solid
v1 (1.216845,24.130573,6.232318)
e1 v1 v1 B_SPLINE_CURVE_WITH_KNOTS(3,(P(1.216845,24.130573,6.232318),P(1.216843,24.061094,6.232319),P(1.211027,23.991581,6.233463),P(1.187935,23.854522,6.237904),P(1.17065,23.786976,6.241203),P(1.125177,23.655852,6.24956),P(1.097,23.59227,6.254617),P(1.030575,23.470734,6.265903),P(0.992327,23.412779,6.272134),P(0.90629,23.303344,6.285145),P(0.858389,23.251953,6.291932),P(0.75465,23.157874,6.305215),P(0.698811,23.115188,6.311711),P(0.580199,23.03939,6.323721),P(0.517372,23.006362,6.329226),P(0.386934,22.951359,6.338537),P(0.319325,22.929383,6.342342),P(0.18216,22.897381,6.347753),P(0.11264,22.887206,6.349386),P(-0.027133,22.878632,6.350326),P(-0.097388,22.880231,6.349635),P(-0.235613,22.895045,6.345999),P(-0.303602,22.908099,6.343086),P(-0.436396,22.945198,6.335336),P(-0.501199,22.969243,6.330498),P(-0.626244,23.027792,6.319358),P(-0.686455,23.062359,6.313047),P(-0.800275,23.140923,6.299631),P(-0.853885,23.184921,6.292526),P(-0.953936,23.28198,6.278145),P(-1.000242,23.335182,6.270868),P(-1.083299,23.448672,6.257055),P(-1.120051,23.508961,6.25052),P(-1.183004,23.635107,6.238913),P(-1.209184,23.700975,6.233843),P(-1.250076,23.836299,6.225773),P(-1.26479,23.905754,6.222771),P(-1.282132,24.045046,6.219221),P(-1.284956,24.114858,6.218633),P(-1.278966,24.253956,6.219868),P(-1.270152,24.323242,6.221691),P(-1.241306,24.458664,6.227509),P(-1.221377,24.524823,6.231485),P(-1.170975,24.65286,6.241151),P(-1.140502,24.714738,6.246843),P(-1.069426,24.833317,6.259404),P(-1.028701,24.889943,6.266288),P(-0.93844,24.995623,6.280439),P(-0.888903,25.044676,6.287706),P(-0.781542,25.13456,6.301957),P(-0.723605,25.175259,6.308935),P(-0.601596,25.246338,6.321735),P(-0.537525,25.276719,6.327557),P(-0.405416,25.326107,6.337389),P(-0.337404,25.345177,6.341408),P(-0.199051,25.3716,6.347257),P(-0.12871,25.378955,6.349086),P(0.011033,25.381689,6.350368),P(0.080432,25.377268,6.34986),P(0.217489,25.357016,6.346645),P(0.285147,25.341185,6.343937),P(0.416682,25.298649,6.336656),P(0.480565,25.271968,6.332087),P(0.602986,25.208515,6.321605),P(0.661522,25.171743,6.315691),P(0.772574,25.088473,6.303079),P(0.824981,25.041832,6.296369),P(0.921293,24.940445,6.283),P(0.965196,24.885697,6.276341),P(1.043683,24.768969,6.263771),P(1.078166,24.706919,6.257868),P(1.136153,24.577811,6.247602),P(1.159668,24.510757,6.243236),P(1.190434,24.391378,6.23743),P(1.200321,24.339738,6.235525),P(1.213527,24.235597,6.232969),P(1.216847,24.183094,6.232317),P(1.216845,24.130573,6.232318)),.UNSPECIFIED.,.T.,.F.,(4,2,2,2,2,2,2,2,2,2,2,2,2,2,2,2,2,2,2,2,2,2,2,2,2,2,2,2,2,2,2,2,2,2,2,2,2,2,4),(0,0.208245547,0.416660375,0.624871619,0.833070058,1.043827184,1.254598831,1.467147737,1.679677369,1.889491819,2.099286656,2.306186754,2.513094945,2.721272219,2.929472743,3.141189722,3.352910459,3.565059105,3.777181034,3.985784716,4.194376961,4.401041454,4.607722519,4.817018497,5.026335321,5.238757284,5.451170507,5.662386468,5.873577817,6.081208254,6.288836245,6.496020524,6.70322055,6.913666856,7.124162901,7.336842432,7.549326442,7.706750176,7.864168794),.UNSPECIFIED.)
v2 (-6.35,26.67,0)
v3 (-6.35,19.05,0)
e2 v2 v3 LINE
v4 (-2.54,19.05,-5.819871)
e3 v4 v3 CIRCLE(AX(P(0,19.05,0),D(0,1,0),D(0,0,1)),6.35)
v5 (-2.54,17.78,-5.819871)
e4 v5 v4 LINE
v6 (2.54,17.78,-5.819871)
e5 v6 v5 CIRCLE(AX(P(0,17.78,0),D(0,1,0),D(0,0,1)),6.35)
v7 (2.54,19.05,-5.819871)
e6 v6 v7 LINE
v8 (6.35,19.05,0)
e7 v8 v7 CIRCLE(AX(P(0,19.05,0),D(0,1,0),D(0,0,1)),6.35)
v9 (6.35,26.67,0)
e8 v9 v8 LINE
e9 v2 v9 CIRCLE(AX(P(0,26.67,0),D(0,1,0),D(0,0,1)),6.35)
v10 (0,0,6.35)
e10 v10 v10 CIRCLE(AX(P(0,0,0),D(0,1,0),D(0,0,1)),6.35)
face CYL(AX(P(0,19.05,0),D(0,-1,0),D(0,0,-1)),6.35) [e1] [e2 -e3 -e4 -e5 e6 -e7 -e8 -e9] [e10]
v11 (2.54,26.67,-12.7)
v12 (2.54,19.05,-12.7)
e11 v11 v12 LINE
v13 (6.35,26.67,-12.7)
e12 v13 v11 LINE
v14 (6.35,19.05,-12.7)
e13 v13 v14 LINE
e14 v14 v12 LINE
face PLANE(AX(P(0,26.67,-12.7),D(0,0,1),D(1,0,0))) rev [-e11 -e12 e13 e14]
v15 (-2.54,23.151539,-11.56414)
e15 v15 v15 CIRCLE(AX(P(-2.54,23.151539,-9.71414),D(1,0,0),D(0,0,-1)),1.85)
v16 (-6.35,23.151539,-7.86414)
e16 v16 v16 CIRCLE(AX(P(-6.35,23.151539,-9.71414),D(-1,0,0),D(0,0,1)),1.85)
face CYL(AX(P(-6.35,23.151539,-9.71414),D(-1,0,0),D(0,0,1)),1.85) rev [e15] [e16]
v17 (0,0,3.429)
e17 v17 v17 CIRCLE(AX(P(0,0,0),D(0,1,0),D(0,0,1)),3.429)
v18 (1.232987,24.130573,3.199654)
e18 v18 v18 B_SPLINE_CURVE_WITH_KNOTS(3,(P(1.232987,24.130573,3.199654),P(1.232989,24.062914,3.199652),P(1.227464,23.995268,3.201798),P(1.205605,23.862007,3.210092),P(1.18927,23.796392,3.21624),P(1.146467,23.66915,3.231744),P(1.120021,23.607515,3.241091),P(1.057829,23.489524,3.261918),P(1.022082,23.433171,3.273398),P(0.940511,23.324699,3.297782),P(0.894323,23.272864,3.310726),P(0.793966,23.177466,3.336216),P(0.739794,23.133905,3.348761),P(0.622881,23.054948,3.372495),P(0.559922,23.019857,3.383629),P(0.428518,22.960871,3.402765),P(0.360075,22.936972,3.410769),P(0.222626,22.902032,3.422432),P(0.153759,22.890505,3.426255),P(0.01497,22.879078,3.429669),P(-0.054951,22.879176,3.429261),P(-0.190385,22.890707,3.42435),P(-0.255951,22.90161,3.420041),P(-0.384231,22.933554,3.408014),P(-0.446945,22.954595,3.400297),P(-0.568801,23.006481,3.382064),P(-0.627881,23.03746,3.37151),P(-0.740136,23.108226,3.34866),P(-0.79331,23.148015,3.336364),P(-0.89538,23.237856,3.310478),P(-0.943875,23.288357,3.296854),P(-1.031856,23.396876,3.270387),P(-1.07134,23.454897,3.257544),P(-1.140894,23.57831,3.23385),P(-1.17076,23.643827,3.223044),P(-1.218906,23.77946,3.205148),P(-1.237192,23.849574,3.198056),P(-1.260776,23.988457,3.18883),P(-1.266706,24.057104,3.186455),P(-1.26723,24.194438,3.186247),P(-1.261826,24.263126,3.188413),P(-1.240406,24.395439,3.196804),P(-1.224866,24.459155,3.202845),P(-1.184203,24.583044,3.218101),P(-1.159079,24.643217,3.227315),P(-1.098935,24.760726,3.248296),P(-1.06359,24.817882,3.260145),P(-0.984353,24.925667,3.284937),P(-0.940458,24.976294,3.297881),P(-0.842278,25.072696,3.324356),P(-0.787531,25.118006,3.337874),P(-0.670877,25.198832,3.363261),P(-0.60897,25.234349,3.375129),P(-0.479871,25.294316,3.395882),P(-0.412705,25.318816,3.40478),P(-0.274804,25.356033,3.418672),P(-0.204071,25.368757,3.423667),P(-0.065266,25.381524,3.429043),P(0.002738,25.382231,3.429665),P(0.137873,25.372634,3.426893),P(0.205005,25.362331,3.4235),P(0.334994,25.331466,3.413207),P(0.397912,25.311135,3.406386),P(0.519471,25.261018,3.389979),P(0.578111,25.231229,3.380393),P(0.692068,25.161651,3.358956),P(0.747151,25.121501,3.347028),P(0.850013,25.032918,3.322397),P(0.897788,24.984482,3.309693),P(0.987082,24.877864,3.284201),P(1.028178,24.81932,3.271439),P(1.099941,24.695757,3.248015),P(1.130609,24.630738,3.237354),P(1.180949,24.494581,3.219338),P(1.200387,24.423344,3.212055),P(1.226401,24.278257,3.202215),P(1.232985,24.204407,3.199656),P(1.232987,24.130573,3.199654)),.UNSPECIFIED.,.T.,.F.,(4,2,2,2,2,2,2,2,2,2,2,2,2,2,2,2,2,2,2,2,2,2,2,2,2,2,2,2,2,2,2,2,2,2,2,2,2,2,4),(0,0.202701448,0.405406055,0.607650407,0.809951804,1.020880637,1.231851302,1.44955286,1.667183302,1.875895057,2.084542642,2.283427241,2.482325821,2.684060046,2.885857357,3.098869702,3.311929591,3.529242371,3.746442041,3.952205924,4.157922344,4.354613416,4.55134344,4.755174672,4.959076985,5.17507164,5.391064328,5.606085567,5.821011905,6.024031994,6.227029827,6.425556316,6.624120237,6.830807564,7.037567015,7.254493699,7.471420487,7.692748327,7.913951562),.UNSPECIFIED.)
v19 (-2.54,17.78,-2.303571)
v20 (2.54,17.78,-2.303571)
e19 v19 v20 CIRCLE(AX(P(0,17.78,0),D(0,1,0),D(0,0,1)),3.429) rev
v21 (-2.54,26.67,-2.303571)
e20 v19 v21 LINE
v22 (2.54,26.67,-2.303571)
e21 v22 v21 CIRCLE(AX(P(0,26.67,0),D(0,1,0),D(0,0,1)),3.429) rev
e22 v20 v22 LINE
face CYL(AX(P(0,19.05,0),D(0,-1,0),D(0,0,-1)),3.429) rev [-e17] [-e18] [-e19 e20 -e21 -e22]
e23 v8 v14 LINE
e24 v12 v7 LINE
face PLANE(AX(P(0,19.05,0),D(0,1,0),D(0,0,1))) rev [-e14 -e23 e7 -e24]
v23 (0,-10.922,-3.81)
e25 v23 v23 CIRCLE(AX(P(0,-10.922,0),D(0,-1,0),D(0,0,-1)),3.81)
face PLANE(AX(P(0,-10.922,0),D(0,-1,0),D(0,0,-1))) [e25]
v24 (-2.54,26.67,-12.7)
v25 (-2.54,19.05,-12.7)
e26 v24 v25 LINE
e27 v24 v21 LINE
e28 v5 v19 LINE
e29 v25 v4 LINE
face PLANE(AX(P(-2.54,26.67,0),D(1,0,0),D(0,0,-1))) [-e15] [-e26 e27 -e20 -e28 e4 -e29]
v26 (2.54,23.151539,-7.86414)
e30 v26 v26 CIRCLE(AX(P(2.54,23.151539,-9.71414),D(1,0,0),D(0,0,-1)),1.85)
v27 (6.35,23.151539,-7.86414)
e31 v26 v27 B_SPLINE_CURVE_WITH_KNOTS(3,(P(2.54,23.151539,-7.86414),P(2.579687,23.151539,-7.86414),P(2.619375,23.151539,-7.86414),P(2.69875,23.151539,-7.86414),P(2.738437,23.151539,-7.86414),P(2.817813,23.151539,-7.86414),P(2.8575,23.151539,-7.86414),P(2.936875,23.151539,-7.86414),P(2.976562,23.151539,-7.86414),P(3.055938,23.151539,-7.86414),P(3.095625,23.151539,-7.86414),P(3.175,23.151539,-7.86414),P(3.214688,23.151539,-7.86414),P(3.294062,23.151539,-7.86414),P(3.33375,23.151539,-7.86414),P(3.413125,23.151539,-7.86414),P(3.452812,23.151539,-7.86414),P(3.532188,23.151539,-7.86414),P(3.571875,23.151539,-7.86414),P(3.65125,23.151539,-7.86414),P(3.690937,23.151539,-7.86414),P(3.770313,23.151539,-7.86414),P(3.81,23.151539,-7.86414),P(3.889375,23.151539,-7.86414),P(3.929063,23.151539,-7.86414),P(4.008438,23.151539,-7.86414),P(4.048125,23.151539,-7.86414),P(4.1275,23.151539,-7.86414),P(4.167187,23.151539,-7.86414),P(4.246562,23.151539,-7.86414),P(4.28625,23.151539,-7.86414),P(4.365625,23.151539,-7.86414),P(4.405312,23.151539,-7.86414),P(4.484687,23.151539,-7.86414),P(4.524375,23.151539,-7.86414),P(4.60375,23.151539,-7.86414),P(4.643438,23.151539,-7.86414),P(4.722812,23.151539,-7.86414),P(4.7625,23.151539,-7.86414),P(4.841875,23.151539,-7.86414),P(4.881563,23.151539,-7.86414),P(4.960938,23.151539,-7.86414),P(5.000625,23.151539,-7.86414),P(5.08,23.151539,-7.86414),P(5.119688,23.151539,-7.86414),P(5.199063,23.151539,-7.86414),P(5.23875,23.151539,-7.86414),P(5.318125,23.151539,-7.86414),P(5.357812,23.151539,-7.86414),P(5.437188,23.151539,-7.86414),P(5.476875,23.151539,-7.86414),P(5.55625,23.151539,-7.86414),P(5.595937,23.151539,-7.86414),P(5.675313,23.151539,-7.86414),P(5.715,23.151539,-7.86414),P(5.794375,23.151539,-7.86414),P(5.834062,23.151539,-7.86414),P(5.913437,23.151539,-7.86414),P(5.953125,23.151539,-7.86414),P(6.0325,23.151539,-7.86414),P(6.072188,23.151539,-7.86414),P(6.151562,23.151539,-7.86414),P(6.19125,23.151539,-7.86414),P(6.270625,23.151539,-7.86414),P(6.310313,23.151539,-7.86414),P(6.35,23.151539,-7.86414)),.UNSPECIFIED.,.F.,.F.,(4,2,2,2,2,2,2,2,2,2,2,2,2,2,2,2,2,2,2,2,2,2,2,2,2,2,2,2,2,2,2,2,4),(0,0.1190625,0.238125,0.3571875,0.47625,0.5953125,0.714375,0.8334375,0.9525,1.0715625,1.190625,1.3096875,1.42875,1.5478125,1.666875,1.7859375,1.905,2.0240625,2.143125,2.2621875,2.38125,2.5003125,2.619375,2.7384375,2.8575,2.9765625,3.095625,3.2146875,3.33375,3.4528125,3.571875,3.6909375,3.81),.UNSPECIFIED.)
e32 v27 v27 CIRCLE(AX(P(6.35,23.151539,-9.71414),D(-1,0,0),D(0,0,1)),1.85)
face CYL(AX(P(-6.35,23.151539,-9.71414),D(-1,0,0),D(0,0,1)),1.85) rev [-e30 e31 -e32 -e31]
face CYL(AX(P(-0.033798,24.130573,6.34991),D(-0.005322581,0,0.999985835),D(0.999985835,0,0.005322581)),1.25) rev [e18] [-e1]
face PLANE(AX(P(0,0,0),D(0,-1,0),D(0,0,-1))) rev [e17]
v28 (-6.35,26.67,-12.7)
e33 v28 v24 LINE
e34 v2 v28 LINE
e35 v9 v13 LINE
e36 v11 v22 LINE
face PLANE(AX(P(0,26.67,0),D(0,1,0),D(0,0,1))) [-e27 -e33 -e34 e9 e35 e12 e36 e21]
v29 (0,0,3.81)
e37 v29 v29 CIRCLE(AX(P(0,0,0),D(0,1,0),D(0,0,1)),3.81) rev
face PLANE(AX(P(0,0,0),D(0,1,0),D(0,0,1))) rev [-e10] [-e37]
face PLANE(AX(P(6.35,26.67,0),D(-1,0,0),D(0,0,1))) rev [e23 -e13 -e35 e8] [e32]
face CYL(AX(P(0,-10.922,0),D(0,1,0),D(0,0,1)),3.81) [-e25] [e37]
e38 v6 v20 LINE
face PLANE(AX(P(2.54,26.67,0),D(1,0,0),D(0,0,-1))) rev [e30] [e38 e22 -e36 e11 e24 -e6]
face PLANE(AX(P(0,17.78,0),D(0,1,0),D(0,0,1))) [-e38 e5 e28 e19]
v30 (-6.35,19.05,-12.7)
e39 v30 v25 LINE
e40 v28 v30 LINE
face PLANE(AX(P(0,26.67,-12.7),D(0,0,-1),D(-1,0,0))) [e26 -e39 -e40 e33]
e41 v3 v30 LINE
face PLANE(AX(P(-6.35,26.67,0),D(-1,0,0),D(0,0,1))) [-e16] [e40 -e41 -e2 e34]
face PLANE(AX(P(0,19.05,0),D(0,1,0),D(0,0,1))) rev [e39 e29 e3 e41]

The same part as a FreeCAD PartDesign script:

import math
import FreeCAD as App
import Part
import Sketcher

V = App.Vector
Q = App.Units.Quantity

doc = App.newDocument("Part")
body = doc.addObject("PartDesign::Body", "Body")

# Sketch on XZ plane
sketch1 = body.newObject("Sketcher::SketchObject", "Sketch")
sketch1.AttachmentSupport = (doc.getObject("XZ_Plane"), [""])
sketch1.MapMode = "FlatFace"
sketch1.addGeometry(Part.Circle(V(0, 0, 0), V(0, 0, 1), 6.3), False)
sketch1.addGeometry(Part.Circle(V(0, 0, 0), V(0, 0, 1), 3.4), False)
sketch1.addConstraint(Sketcher.Constraint("Coincident", 0, 3, -1, 1))
sketch1.addConstraint(Sketcher.Constraint("Coincident", 1, 3, -1, 1))
sketch1.addConstraint(Sketcher.Constraint("Diameter", 0, Q("0.5 in")))
sketch1.addConstraint(Sketcher.Constraint("Diameter", 1, Q("0.27 in")))
pad1 = body.newObject("PartDesign::Pad", "Pad")
pad1.Profile = sketch1
pad1.Length = Q("0.75 in")
pad1.Reversed = True

# Sketch on XZ plane
sketch2 = body.newObject("Sketcher::SketchObject", "Sketch001")
sketch2.AttachmentSupport = (doc.getObject("XZ_Plane"), [""])
sketch2.MapMode = "FlatFace"
sketch2.addGeometry(Part.Circle(V(0, 0, 0), V(0, 0, 1), 3.8), False)
sketch2.addConstraint(Sketcher.Constraint("Coincident", 0, 3, -1, 1))
sketch2.addConstraint(Sketcher.Constraint("Diameter", 0, Q("0.3 in")))
pad2 = body.newObject("PartDesign::Pad", "Pad001")
pad2.Profile = sketch2
pad2.Length = Q("0.43 in")

# Sketch on XZ plane
sketch3 = body.newObject("Sketcher::SketchObject", "Sketch002")
sketch3.AttachmentSupport = (doc.getObject("XZ_Plane"), [""])
sketch3.MapMode = "FlatFace"
sketch3.AttachmentOffset = App.Placement(V(0, 0, -0.75 * 25.4), App.Rotation())
sketch3.addGeometry(Part.LineSegment(V(2.5, -12.7, 0), V(2.5, -5.8, 0)), False)
sketch3.addGeometry(Part.ArcOfCircle(Part.Circle(V(0, 0, 0), V(0, 0, 1), 6.4), math.radians(-114), math.radians(-66)), False)
sketch3.addGeometry(Part.LineSegment(V(-2.5, -5.8, 0), V(-2.5, -12.7, 0)), False)
sketch3.addGeometry(Part.LineSegment(V(-2.5, -12.7, 0), V(-6.3, -12.7, 0)), False)
sketch3.addGeometry(Part.LineSegment(V(-6.3, -12.7, 0), V(-6.3, 0, 0)), False)
sketch3.addGeometry(Part.ArcOfCircle(Part.Circle(V(0, 0, 0), V(0, 0, 1), 6.3), math.radians(0), math.radians(180)), False)
sketch3.addGeometry(Part.LineSegment(V(6.3, 0, 0), V(6.3, -12.7, 0)), False)
sketch3.addGeometry(Part.LineSegment(V(6.3, -12.7, 0), V(2.5, -12.7, 0)), False)
sketch3.addGeometry(Part.Circle(V(0, 0, 0), V(0, 0, 1), 3.4), False)
sketch3.addConstraint(Sketcher.Constraint("Coincident", 0, 2, 1, 2))
sketch3.addConstraint(Sketcher.Constraint("Coincident", 1, 1, 2, 1))
sketch3.addConstraint(Sketcher.Constraint("Coincident", 2, 2, 3, 1))
sketch3.addConstraint(Sketcher.Constraint("Coincident", 3, 2, 4, 1))
sketch3.addConstraint(Sketcher.Constraint("Tangent", 4, 2, 5, 2))
sketch3.addConstraint(Sketcher.Constraint("Tangent", 5, 1, 6, 1))
sketch3.addConstraint(Sketcher.Constraint("Coincident", 6, 2, 7, 1))
sketch3.addConstraint(Sketcher.Constraint("Coincident", 7, 2, 0, 1))
sketch3.addConstraint(Sketcher.Constraint("Vertical", 0))
sketch3.addConstraint(Sketcher.Constraint("Vertical", 2))
sketch3.addConstraint(Sketcher.Constraint("Horizontal", 3))
sketch3.addConstraint(Sketcher.Constraint("Vertical", 4))
sketch3.addConstraint(Sketcher.Constraint("Vertical", 6))
sketch3.addConstraint(Sketcher.Constraint("Horizontal", 7))
sketch3.addConstraint(Sketcher.Constraint("Coincident", 1, 3, -1, 1))
sketch3.addConstraint(Sketcher.Constraint("Coincident", 5, 3, -1, 1))
sketch3.addConstraint(Sketcher.Constraint("Coincident", 8, 3, -1, 1))
sketch3.addConstraint(Sketcher.Constraint("Equal", 1, 5))
sketch3.addConstraint(Sketcher.Constraint("Symmetric", 2, 2, 7, 2, -2))
sketch3.addConstraint(Sketcher.Constraint("Diameter", 8, Q("0.27 in")))
sketch3.addConstraint(Sketcher.Constraint("Radius", 1, Q("0.25 in")))
sketch3.addConstraint(Sketcher.Constraint("DistanceY", 4, 1, 4, 2, Q("0.5 in")))
sketch3.addConstraint(Sketcher.Constraint("DistanceX", 3, 2, 3, 1, Q("0.15 in")))
pad3 = body.newObject("PartDesign::Pad", "Pad002")
pad3.Profile = sketch3
pad3.Length = Q("0.3 in")
pad3.Reversed = True

# Sketch on YZ plane
sketch4 = body.newObject("Sketcher::SketchObject", "Sketch003")
sketch4.AttachmentSupport = (doc.getObject("YZ_Plane"), [""])
sketch4.MapMode = "FlatFace"
sketch4.AttachmentOffset = App.Placement(V(0, 0, -0.25 * 25.4), App.Rotation())
sketch4.addGeometry(Part.Circle(V(23.2, -9.7, 0), V(0, 0, 1), 1.9), False)
sketch4.addConstraint(Sketcher.Constraint("Diameter", 0, Q("3.7 mm")))
sketch4.addConstraint(Sketcher.Constraint("DistanceX", -1, 1, 0, 3, Q("23.151539 mm")))
sketch4.addConstraint(Sketcher.Constraint("DistanceY", 0, 3, -1, 1, Q("9.71414 mm")))
doc.recompute()
hole = body.newObject("PartDesign::Hole", "Hole")
hole.Profile = sketch4
hole.ThreadType = "None"
hole.Diameter = 3.7
hole.DepthType = "Dimension"
hole.Depth = Q("1 in")
hole.DrillPoint = "Angled"
hole.DrillPointAngle = 118
hole.Reversed = True

# Sketch on XZ plane
sketch5 = body.newObject("Sketcher::SketchObject", "Sketch004")
sketch5.AttachmentSupport = (doc.getObject("XZ_Plane"), [""])
sketch5.MapMode = "FlatFace"
sketch5.AttachmentOffset = App.Placement(V(0, 0, -0.7 * 25.4), App.Rotation())
sketch5.addGeometry(Part.LineSegment(V(2.5, -2.3, 0), V(2.5, -5.8, 0)), False)
sketch5.addGeometry(Part.ArcOfCircle(Part.Circle(V(0, 0, 0), V(0, 0, 1), 6.4), math.radians(-114), math.radians(-66)), False)
sketch5.addGeometry(Part.LineSegment(V(-2.5, -5.8, 0), V(-2.5, -2.3, 0)), False)
sketch5.addGeometry(Part.ArcOfCircle(Part.Circle(V(0, 0, 0), V(0, 0, 1), 3.4), math.radians(-138), math.radians(-42)), False)
sketch5.addConstraint(Sketcher.Constraint("Coincident", 0, 2, 1, 2))
sketch5.addConstraint(Sketcher.Constraint("Coincident", 1, 1, 2, 1))
sketch5.addConstraint(Sketcher.Constraint("Coincident", 2, 2, 3, 1))
sketch5.addConstraint(Sketcher.Constraint("Coincident", 3, 2, 0, 1))
sketch5.addConstraint(Sketcher.Constraint("Vertical", 0))
sketch5.addConstraint(Sketcher.Constraint("Vertical", 2))
sketch5.addConstraint(Sketcher.Constraint("Coincident", 1, 3, -1, 1))
sketch5.addConstraint(Sketcher.Constraint("Coincident", 3, 3, -1, 1))
sketch5.addConstraint(Sketcher.Constraint("Horizontal", 0, 2, 1, 1))
sketch5.addConstraint(Sketcher.Constraint("Radius", 1, Q("0.25 in")))
sketch5.addConstraint(Sketcher.Constraint("Radius", 3, Q("0.135 in")))
sketch5.addConstraint(Sketcher.Constraint("DistanceX", -1, 1, 0, 2, Q("0.1 in")))
pocket1 = body.newObject("PartDesign::Pocket", "Pocket")
pocket1.Profile = sketch5
pocket1.Length = Q("0.35 in")

# Sketch on an angled plane
sketch6 = body.newObject("Sketcher::SketchObject", "Sketch005")
sketch6.Placement = App.Placement(V(-0.033798, 0, 6.34991), App.Rotation(V(0.999985835, 0, 0.005322581), V(0, 1, 0), V(-0.005322581, 0, 0.999985835), "ZXY"))
sketch6.addGeometry(Part.Circle(V(0, 24.1, 0), V(0, 0, 1), 1.2), False)
sketch6.addConstraint(Sketcher.Constraint("PointOnObject", 0, 3, -2))
sketch6.addConstraint(Sketcher.Constraint("Diameter", 0, Q("2.5 mm")))
sketch6.addConstraint(Sketcher.Constraint("DistanceY", -1, 1, 0, 3, Q("24.130573 mm")))
doc.recompute()
hole2 = body.newObject("PartDesign::Hole", "Hole001")
hole2.Profile = sketch6
hole2.ThreadType = "None"
hole2.Diameter = 2.5
hole2.DepthType = "ThroughAll"

doc.recompute()
